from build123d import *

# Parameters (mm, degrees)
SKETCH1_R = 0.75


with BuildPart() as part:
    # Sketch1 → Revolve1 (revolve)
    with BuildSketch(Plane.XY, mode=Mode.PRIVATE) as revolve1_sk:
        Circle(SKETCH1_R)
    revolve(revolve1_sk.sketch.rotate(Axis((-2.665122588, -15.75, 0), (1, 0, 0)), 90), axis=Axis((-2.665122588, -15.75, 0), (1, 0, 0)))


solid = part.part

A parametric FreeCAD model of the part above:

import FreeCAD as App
import Part
import Sketcher
from FreeCAD import Vector

doc = App.newDocument("Part")
body = doc.addObject("PartDesign::Body", "Body")

# Sketch on XY plane
sketch1 = body.newObject("Sketcher::SketchObject", "Sketch")
sketch1.AttachmentSupport = (doc.getObject("XY_Plane"), [""])
sketch1.MapMode = "FlatFace"
sketch1.addGeometry(Part.Circle(Vector(0, 0, 0), Vector(0, 0, 1), 0.75), False)
sketch1.addGeometry(Part.LineSegment(Vector(0, -15.75, 0), Vector(10, -15.75, 0)), True)  # axis
sketch1.addConstraint([
    Sketcher.Constraint("Horizontal", 1),
    Sketcher.Constraint("Coincident", 0, 3, -1, 1),
    Sketcher.Constraint("PointOnObject", 1, 1, -2),
    Sketcher.Constraint("Diameter", 0, 1.5),
    Sketcher.Constraint("DistanceX", 1, 1, 1, 2, 10.0),
    Sketcher.Constraint("DistanceY", 1, 1, -1, 1, 15.75),
])
revolution = body.newObject("PartDesign::Revolution", "Revolution")
revolution.Profile = sketch1
revolution.ReferenceAxis = (sketch1, ["Axis0"])
revolution.Angle = 360

doc.recompute()
